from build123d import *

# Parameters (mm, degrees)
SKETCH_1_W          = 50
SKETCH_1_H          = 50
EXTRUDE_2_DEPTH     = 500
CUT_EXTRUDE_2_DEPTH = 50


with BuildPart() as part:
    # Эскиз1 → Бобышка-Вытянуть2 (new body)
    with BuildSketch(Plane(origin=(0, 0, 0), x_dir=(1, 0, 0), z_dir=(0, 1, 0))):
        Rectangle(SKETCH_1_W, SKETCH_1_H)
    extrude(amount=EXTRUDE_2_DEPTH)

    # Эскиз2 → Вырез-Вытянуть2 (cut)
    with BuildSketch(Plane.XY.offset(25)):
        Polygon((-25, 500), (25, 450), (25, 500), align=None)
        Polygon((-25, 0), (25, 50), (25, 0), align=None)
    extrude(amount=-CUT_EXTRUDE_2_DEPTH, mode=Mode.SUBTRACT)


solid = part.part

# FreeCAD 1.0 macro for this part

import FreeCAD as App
import Part
import Sketcher

V = App.Vector
Q = App.Units.Quantity

doc = App.newDocument("Part")
body = doc.addObject("PartDesign::Body", "Body")

# Sketch on XZ plane
sketch1 = doc.addObject("Sketcher::SketchObject", "Sketch")
body.addObject(sketch1)
sketch1.AttachmentSupport = (doc.XZ_Plane, [""])
sketch1.MapMode = "FlatFace"
sketch1.addGeometry([
    Part.LineSegment(V(-25, -25, 0), V(-25, 25, 0)),
    Part.LineSegment(V(-25, 25, 0), V(25, 25, 0)),
    Part.LineSegment(V(25, 25, 0), V(25, -25, 0)),
    Part.LineSegment(V(25, -25, 0), V(-25, -25, 0)),
], False)
sketch1.addConstraint([
    Sketcher.Constraint("Coincident", 0, 2, 1, 1),
    Sketcher.Constraint("Coincident", 1, 2, 2, 1),
    Sketcher.Constraint("Coincident", 2, 2, 3, 1),
    Sketcher.Constraint("Coincident", 3, 2, 0, 1),
    Sketcher.Constraint("Vertical", 0),
    Sketcher.Constraint("Horizontal", 1),
    Sketcher.Constraint("Vertical", 2),
    Sketcher.Constraint("Horizontal", 3),
    Sketcher.Constraint("Symmetric", 0, 2, 2, 2, -1, 1),
    Sketcher.Constraint("Equal", 3, 0),
    Sketcher.Constraint("DistanceX", 1, 1, 1, 2, Q("50 mm")),
])
pad1 = doc.addObject("PartDesign::Pad", "Pad")
body.addObject(pad1)
pad1.Profile = sketch1
pad1.Length = 500
pad1.Reversed = True

# Sketch on XY plane
sketch2 = doc.addObject("Sketcher::SketchObject", "Sketch001")
body.addObject(sketch2)
sketch2.AttachmentSupport = (doc.XY_Plane, [""])
sketch2.MapMode = "FlatFace"
sketch2.AttachmentOffset = App.Placement(V(0, 0, 25), App.Rotation())
sketch2.addGeometry([
    Part.LineSegment(V(-25, 500, 0), V(25, 450, 0)),  # 0
    Part.LineSegment(V(25, 450, 0), V(25, 500, 0)),  # 1
    Part.LineSegment(V(25, 500, 0), V(-25, 500, 0)),  # 2
    Part.LineSegment(V(25, 50, 0), V(-25, 0, 0)),  # 3
    Part.LineSegment(V(-25, 0, 0), V(25, 0, 0)),  # 4
    Part.LineSegment(V(25, 0, 0), V(25, 50, 0)),  # 5
], False)
sketch2.addConstraint([
    Sketcher.Constraint("Coincident", 0, 2, 1, 1),
    Sketcher.Constraint("Coincident", 1, 2, 2, 1),
    Sketcher.Constraint("Coincident", 2, 2, 0, 1),
    Sketcher.Constraint("Coincident", 3, 2, 4, 1),
    Sketcher.Constraint("Coincident", 4, 2, 5, 1),
    Sketcher.Constraint("Coincident", 5, 2, 3, 1),
    Sketcher.Constraint("Vertical", 1),
    Sketcher.Constraint("Horizontal", 2),
    Sketcher.Constraint("Horizontal", 4),
    Sketcher.Constraint("Vertical", 5),
    Sketcher.Constraint("Symmetric", 3, 2, 4, 2, -1, 1),
    Sketcher.Constraint("Perpendicular", 0, 3),
    Sketcher.Constraint("Vertical", 2, 2, 3, 2),
    Sketcher.Constraint("Vertical", 1, 2, 4, 2),
    Sketcher.Constraint("Equal", 4, 1),
    Sketcher.Constraint("DistanceX", 2, 2, 2, 1, Q("50 mm")),
    Sketcher.Constraint("DistanceY", -1, 1, 0, 2, Q("450 mm")),
])
pocket1 = doc.addObject("PartDesign::Pocket", "Pocket")
body.addObject(pocket1)
pocket1.Profile = sketch2
pocket1.Length = 50

doc.recompute()
